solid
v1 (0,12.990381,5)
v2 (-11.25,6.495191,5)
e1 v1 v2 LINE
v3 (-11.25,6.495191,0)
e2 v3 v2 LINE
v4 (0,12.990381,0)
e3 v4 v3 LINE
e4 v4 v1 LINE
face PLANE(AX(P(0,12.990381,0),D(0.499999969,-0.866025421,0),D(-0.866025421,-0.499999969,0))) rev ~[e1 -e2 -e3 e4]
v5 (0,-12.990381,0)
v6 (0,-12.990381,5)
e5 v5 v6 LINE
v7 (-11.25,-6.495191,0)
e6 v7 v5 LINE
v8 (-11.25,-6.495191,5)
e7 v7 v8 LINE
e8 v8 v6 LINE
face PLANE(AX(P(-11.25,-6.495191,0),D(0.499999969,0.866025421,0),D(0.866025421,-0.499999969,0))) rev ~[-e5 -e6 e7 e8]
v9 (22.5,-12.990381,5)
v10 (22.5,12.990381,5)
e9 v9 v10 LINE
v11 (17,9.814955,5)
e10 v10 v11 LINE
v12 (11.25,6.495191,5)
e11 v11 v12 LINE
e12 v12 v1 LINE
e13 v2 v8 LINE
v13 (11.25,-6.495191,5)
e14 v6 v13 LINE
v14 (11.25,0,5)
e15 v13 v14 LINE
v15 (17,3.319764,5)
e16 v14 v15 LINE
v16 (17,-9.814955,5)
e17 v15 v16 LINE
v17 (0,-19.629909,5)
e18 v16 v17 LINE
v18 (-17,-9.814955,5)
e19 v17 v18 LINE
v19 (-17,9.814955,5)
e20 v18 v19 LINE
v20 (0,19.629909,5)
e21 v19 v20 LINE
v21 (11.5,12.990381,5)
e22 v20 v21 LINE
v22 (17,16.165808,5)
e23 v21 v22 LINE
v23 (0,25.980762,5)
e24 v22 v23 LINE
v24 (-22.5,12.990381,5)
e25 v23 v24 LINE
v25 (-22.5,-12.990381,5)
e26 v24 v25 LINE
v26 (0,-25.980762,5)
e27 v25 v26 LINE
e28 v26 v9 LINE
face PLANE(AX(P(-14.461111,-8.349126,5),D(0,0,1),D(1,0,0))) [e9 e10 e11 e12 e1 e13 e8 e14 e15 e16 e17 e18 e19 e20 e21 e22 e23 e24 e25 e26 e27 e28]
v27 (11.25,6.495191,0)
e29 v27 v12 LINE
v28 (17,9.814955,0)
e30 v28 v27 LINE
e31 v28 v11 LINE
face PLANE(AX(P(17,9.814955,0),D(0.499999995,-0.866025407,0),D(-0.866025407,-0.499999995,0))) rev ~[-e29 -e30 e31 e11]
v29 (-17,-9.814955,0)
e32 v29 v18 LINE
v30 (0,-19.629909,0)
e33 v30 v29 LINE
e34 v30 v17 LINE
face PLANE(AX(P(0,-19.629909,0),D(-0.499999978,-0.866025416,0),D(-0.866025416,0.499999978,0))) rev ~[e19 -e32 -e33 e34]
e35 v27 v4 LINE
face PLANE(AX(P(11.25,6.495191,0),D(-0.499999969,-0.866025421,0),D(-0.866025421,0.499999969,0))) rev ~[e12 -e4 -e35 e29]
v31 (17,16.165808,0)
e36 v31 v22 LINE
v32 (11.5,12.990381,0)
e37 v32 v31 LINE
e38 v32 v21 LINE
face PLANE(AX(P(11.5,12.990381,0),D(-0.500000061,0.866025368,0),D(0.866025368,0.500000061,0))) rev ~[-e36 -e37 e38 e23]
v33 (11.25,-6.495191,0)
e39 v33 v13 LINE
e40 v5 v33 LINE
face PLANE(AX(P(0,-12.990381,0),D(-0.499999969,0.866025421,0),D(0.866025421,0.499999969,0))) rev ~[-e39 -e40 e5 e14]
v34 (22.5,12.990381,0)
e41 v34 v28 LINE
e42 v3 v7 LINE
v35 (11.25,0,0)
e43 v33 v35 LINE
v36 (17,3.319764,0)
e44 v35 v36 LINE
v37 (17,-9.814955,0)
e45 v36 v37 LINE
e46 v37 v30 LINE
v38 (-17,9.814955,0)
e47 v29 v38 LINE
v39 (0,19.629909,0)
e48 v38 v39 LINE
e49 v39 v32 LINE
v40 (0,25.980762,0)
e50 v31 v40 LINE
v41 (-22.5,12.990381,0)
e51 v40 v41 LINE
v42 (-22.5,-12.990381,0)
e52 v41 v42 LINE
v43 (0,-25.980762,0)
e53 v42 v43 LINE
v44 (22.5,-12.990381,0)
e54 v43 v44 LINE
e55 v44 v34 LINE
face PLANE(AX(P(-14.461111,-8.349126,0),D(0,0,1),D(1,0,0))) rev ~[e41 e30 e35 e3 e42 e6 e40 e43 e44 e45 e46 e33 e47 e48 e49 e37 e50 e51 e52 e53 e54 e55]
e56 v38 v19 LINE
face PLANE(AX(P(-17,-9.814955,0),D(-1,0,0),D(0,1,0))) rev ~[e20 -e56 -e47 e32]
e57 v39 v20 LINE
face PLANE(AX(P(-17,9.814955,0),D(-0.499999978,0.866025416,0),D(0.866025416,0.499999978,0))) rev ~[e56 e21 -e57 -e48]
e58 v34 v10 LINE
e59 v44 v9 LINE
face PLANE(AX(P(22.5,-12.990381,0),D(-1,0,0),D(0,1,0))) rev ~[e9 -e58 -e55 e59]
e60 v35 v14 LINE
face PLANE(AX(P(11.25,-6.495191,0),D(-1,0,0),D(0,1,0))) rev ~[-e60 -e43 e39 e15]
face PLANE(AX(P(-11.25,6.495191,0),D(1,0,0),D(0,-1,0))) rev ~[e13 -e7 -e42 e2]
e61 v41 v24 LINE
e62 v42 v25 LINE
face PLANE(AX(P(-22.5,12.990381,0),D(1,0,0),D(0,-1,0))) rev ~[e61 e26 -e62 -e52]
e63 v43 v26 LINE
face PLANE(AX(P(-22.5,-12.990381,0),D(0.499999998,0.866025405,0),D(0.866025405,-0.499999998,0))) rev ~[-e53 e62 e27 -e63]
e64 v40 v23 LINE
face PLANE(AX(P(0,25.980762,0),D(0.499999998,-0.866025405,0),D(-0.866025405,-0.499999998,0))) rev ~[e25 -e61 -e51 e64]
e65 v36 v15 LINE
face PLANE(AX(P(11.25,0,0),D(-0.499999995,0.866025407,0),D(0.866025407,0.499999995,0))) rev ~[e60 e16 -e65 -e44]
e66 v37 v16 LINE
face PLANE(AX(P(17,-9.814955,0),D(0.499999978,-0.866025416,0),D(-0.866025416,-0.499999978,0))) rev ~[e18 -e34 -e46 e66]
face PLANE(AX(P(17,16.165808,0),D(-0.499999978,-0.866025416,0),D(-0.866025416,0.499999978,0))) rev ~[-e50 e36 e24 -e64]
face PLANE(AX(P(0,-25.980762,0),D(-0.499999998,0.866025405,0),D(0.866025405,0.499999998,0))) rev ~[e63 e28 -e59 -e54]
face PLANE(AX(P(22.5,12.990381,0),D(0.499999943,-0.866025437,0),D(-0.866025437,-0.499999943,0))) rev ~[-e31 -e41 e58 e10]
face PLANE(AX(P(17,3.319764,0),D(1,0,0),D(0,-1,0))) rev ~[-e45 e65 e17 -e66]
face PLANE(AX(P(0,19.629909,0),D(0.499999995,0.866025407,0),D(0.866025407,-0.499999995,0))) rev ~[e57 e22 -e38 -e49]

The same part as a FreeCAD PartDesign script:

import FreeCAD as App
import Part
import Sketcher
Q = App.Units.Quantity


def add_polygon(sketch, points):
    """Adds a closed chain of lines whose ends are joined by coincident constraints."""
    first, n = sketch.GeometryCount, len(points)
    for a, b in zip(points, points[1:] + points[:1]):
        sketch.addGeometry(Part.LineSegment(App.Vector(*a, 0), App.Vector(*b, 0)), False)
    for i in range(n):
        sketch.addConstraint(Sketcher.Constraint("Coincident", first + i, 2, first + (i + 1) % n, 1))

doc = App.newDocument("Part")
body = doc.addObject("PartDesign::Body", "Body")

# Sketch on XY plane
sketch1 = body.newObject("Sketcher::SketchObject", "Sketch")
sketch1.AttachmentSupport = (doc.getObject("XY_Plane"), [""])
sketch1.MapMode = "FlatFace"
add_polygon(sketch1, [(-22, -13), (0, -26), (22, -13), (22, 13), (17, 10), (11, 6), (0, 13), (-11, 6), (-11, -6), (0, -13), (11, -6), (11, 0), (17, 3), (17, -10), (0, -20), (-17, -10), (-17, 10), (0, 20), (12, 13), (17, 16), (0, 26), (-22, 13)])  # lines 0-21
sketch1.addConstraint(Sketcher.Constraint("Vertical", 2))
sketch1.addConstraint(Sketcher.Constraint("Vertical", 7))
sketch1.addConstraint(Sketcher.Constraint("Vertical", 10))
sketch1.addConstraint(Sketcher.Constraint("Vertical", 12))
sketch1.addConstraint(Sketcher.Constraint("Vertical", 15))
sketch1.addConstraint(Sketcher.Constraint("Vertical", 21))
sketch1.addConstraint(Sketcher.Constraint("Symmetric", 4, 2, 7, 2, -1, 1))
sketch1.addConstraint(Sketcher.Constraint("Symmetric", 5, 2, 8, 2, -1, 1))
sketch1.addConstraint(Sketcher.Constraint("Symmetric", 6, 2, 9, 2, -1, 1))
sketch1.addConstraint(Sketcher.Constraint("Symmetric", 3, 2, 14, 2, -1, 1))
sketch1.addConstraint(Sketcher.Constraint("Symmetric", 12, 2, 15, 2, -1, 1))
sketch1.addConstraint(Sketcher.Constraint("Symmetric", 13, 2, 16, 2, -1, 1))
sketch1.addConstraint(Sketcher.Constraint("Symmetric", 0, 2, 19, 2, -1, 1))
sketch1.addConstraint(Sketcher.Constraint("Symmetric", 1, 2, 20, 2, -1, 1))
sketch1.addConstraint(Sketcher.Constraint("PointOnObject", 0, 2, -2))
sketch1.addConstraint(Sketcher.Constraint("PointOnObject", 5, 2, -2))
sketch1.addConstraint(Sketcher.Constraint("PointOnObject", 10, 2, -1))
sketch1.addConstraint(Sketcher.Constraint("PointOnObject", 13, 2, -2))
sketch1.addConstraint(Sketcher.Constraint("Parallel", 1, 3))
sketch1.addConstraint(Sketcher.Constraint("Parallel", 3, 4))
sketch1.addConstraint(Sketcher.Constraint("Parallel", 0, 5))
sketch1.addConstraint(Sketcher.Constraint("Parallel", 4, 6))
sketch1.addConstraint(Sketcher.Constraint("Parallel", 9, 11))
sketch1.addConstraint(Sketcher.Constraint("Parallel", 11, 13))
sketch1.addConstraint(Sketcher.Constraint("Parallel", 8, 14))
sketch1.addConstraint(Sketcher.Constraint("Parallel", 14, 17))
sketch1.addConstraint(Sketcher.Constraint("Parallel", 16, 18))
sketch1.addConstraint(Sketcher.Constraint("Parallel", 17, 19))
sketch1.addConstraint(Sketcher.Constraint("Horizontal", 2, 2, 5, 2))
sketch1.addConstraint(Sketcher.Constraint("Horizontal", 4, 2, 6, 2))
sketch1.addConstraint(Sketcher.Constraint("Horizontal", 1, 2, 8, 2))
sketch1.addConstraint(Sketcher.Constraint("Horizontal", 5, 2, 17, 2))
sketch1.addConstraint(Sketcher.Constraint("Angle", 0, Q("-30 deg")))
sketch1.addConstraint(Sketcher.Constraint("DistanceX", -1, 1, 3, 2, 17.0))
sketch1.addConstraint(Sketcher.Constraint("DistanceX", 17, 2, 2, 2, 11.0))
sketch1.addConstraint(Sketcher.Constraint("DistanceY", 2, 1, 2, 2, 25.980762))
pad1 = body.newObject("PartDesign::Pad", "Pad")
pad1.Profile = sketch1
pad1.Length = 5

doc.recompute()
